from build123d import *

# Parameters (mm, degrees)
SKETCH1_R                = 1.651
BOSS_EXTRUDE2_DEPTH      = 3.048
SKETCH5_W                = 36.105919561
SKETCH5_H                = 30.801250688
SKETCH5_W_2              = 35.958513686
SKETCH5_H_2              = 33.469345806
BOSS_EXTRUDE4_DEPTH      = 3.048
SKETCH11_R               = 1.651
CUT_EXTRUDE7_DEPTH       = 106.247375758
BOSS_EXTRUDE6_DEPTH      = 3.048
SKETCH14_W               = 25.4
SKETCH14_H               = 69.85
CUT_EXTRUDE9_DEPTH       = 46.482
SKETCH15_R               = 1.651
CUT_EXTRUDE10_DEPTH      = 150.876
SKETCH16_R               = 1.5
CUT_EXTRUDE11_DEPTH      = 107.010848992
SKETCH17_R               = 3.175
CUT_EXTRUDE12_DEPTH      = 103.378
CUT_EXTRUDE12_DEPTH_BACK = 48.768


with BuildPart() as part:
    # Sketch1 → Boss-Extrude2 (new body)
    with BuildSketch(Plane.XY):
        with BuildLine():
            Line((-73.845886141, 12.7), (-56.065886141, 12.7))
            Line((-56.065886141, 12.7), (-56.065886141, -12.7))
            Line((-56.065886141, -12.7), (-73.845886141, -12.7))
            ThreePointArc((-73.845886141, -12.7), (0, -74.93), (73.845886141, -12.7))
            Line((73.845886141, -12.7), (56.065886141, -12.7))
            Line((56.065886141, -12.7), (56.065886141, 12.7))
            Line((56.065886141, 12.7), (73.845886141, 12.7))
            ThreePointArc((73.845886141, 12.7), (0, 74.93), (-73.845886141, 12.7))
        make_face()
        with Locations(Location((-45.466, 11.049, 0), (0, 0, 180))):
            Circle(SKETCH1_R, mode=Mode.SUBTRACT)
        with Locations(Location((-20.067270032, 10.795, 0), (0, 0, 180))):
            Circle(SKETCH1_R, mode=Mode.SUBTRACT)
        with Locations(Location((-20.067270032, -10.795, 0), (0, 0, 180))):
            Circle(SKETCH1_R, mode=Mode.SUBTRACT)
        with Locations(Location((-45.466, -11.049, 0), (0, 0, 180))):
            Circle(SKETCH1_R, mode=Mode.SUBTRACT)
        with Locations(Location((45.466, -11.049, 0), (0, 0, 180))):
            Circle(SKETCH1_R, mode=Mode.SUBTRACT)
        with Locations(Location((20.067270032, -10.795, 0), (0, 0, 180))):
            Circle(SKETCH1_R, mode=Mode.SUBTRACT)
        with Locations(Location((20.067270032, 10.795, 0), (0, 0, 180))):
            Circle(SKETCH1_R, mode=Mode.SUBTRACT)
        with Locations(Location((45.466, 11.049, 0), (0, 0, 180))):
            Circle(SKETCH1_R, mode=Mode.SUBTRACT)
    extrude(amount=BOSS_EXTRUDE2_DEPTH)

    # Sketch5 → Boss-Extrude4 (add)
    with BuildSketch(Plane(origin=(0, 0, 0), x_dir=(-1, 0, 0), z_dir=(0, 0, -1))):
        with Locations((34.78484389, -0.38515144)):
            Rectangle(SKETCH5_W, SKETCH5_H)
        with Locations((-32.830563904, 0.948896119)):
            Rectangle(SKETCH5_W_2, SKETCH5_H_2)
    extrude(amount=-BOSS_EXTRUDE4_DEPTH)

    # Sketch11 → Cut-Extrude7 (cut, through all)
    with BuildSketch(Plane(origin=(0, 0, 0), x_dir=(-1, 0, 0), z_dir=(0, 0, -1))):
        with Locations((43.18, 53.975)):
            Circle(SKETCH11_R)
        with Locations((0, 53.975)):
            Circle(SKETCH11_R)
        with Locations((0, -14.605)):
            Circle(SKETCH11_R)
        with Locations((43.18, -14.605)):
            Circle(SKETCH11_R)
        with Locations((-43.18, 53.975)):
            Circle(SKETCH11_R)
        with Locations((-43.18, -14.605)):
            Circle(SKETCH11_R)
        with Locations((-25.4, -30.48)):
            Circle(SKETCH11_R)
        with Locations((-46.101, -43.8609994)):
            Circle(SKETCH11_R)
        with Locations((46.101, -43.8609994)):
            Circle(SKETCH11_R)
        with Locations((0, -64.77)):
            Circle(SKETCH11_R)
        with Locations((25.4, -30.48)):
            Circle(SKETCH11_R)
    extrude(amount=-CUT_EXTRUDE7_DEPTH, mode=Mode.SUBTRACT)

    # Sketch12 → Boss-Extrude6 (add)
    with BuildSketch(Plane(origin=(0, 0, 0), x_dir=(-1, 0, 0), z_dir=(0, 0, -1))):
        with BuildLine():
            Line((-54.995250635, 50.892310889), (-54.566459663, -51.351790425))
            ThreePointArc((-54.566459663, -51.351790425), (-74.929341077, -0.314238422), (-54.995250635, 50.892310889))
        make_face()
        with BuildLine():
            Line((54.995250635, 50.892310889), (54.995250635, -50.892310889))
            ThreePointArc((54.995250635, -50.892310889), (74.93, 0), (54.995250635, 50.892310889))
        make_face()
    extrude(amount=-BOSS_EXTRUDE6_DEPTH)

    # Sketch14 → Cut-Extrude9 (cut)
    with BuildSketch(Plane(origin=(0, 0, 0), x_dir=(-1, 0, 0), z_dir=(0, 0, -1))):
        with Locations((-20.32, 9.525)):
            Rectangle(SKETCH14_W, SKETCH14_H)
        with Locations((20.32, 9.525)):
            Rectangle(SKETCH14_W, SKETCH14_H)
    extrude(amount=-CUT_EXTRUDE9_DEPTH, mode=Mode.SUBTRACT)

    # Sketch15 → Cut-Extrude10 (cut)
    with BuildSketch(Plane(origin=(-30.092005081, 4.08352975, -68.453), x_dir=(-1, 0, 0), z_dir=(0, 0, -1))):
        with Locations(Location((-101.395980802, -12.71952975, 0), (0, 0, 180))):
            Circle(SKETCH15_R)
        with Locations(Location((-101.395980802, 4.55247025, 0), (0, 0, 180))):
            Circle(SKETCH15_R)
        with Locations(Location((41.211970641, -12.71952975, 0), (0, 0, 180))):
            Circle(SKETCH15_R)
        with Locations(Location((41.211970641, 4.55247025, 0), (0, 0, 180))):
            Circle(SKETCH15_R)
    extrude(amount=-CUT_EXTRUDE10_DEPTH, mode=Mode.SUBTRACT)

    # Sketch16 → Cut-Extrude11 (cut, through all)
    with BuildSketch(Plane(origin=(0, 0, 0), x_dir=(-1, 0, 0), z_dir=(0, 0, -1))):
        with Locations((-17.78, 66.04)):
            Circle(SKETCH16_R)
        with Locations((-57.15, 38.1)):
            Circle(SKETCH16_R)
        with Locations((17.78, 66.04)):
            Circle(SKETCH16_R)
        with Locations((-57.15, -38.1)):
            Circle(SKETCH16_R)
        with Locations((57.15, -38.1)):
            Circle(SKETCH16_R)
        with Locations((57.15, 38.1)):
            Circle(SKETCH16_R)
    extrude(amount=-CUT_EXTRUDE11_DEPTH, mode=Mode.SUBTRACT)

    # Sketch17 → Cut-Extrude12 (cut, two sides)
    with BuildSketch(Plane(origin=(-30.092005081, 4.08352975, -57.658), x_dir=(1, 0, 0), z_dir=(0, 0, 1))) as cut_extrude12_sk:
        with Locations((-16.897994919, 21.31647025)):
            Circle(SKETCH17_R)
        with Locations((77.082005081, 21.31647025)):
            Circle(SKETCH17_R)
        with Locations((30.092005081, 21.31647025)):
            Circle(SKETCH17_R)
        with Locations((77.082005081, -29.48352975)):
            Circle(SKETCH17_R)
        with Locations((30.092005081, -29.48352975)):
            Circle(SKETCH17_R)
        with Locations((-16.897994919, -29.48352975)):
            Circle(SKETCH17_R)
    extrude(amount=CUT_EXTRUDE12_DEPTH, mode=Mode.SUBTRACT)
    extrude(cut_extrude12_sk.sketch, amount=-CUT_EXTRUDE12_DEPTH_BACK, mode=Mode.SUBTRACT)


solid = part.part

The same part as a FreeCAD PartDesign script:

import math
import FreeCAD as App
import Part
import Sketcher

V = App.Vector
Q = App.Units.Quantity


def add_polygon(sketch, points):
    """Adds a closed chain of lines whose ends are joined by coincident constraints."""
    first, n = sketch.GeometryCount, len(points)
    for a, b in zip(points, points[1:] + points[:1]):
        sketch.addGeometry(Part.LineSegment(App.Vector(*a, 0), App.Vector(*b, 0)), False)
    for i in range(n):
        sketch.addConstraint(Sketcher.Constraint("Coincident", first + i, 2, first + (i + 1) % n, 1))

doc = App.newDocument("Part")
body = doc.addObject("PartDesign::Body", "Body")

sketch1 = doc.addObject("Sketcher::SketchObject", "Sketch")
body.addObject(sketch1)
sketch1.AttachmentSupport = (doc.XY_Plane, [""])
sketch1.MapMode = "FlatFace"
sketch1.addGeometry([
    Part.LineSegment(V(-73.8, 12.7, 0), V(-56.1, 12.7, 0)),
    Part.LineSegment(V(-56.1, 12.7, 0), V(-56.1, -12.7, 0)),
    Part.LineSegment(V(-56.1, -12.7, 0), V(-73.8, -12.7, 0)),
    Part.ArcOfCircle(Part.Circle(V(0, 0, 0), V(0, 0, 1), 74.9), math.radians(-170), math.radians(-10)),
    Part.LineSegment(V(73.8, -12.7, 0), V(56.1, -12.7, 0)),
    Part.LineSegment(V(56.1, -12.7, 0), V(56.1, 12.7, 0)),
    Part.LineSegment(V(56.1, 12.7, 0), V(73.8, 12.7, 0)),
    Part.ArcOfCircle(Part.Circle(V(0, 0, 0), V(0, 0, 1), 74.9), math.radians(10), math.radians(170)),
    Part.Circle(V(-45.5, -11, 0), V(0, 0, 1), 1.7),
    Part.Circle(V(-20.1, -10.8, 0), V(0, 0, 1), 1.7),
    Part.Circle(V(20.1, -10.8, 0), V(0, 0, 1), 1.7),
    Part.Circle(V(45.5, -11, 0), V(0, 0, 1), 1.7),
    Part.Circle(V(-45.5, 11, 0), V(0, 0, 1), 1.7),
    Part.Circle(V(-20.1, 10.8, 0), V(0, 0, 1), 1.7),
    Part.Circle(V(20.1, 10.8, 0), V(0, 0, 1), 1.7),
    Part.Circle(V(45.5, 11, 0), V(0, 0, 1), 1.7),
], False)
sketch1.addConstraint([
    Sketcher.Constraint("Coincident", 0, 2, 1, 1),
    Sketcher.Constraint("Coincident", 1, 2, 2, 1),
    Sketcher.Constraint("Coincident", 2, 2, 3, 1),
    Sketcher.Constraint("Coincident", 3, 2, 4, 1),
    Sketcher.Constraint("Coincident", 4, 2, 5, 1),
    Sketcher.Constraint("Coincident", 5, 2, 6, 1),
    Sketcher.Constraint("Coincident", 6, 2, 7, 1),
    Sketcher.Constraint("Coincident", 7, 2, 0, 1),
    Sketcher.Constraint("Horizontal", 0),
    Sketcher.Constraint("Vertical", 1),
    Sketcher.Constraint("Horizontal", 2),
    Sketcher.Constraint("Horizontal", 4),
    Sketcher.Constraint("Vertical", 5),
    Sketcher.Constraint("Horizontal", 6),
    Sketcher.Constraint("Coincident", 3, 3, -1, 1),
    Sketcher.Constraint("Coincident", 7, 3, -1, 1),
    Sketcher.Constraint("Equal", 3, 7),
    Sketcher.Constraint("Equal", 8, 9),
    Sketcher.Constraint("Equal", 9, 10),
    Sketcher.Constraint("Equal", 10, 11),
    Sketcher.Constraint("Equal", 11, 12),
    Sketcher.Constraint("Equal", 12, 13),
    Sketcher.Constraint("Equal", 13, 14),
    Sketcher.Constraint("Equal", 14, 15),
    Sketcher.Constraint("Symmetric", 11, 3, 12, 3, -1, 1),
    Sketcher.Constraint("Symmetric", 10, 3, 13, 3, -1, 1),
    Sketcher.Constraint("Symmetric", 9, 3, 14, 3, -1, 1),
    Sketcher.Constraint("Symmetric", 8, 3, 15, 3, -1, 1),
    Sketcher.Constraint("Symmetric", 0, 2, 4, 2, -1, 1),
    Sketcher.Constraint("Symmetric", 9, 3, 10, 3, -2),
    Sketcher.Constraint("Symmetric", 8, 3, 11, 3, -2),
    Sketcher.Constraint("Horizontal", 2, 2, 3, 2),
    Sketcher.Constraint("Horizontal", 0, 2, 5, 2),
    Sketcher.Constraint("Diameter", 8, Q("0.13 in")),
    Sketcher.Constraint("DistanceY", 1, 2, 1, 1, Q("1 in")),
    Sketcher.Constraint("Radius", 3, Q("2.95 in")),
    Sketcher.Constraint("DistanceX", 0, 1, 0, 2, Q("0.7 in")),
    Sketcher.Constraint("DistanceX", 8, 3, -1, 1, Q("1.79 in")),
    Sketcher.Constraint("DistanceY", 8, 3, 9, 3, Q("0.01 in")),
    Sketcher.Constraint("DistanceY", 8, 3, 12, 3, Q("0.87 in")),
    Sketcher.Constraint("DistanceX", 9, 3, 10, 3, Q("1.5801 in")),
])
pad1 = doc.addObject("PartDesign::Pad", "Pad")
body.addObject(pad1)
pad1.Profile = sketch1
pad1.Length = Q("0.12 in")

sketch2 = doc.addObject("Sketcher::SketchObject", "Sketch001")
body.addObject(sketch2)
sketch2.AttachmentSupport = (doc.XY_Plane, [""])
sketch2.MapMode = "FlatFace"
add_polygon(sketch2, [(-17, 15), (-17, -16), (-53, -16), (-53, 15)])
add_polygon(sketch2, [(51, 18), (51, -16), (15, -16), (15, 18)])
sketch2.addConstraint([
    Sketcher.Constraint("Vertical", 0),
    Sketcher.Constraint("Horizontal", 1),
    Sketcher.Constraint("Vertical", 2),
    Sketcher.Constraint("Horizontal", 3),
    Sketcher.Constraint("Vertical", 4),
    Sketcher.Constraint("Horizontal", 5),
    Sketcher.Constraint("Vertical", 6),
    Sketcher.Constraint("Horizontal", 7),
    Sketcher.Constraint("Horizontal", 1, 2, 4, 2),
    Sketcher.Constraint("DistanceX", 1, 2, 1, 1, Q("36.10592 mm")),
    Sketcher.Constraint("DistanceY", 0, 2, 0, 1, Q("30.801251 mm")),
    Sketcher.Constraint("DistanceX", 5, 2, 5, 1, Q("35.958514 mm")),
    Sketcher.Constraint("DistanceY", 4, 2, 4, 1, Q("33.469346 mm")),
    Sketcher.Constraint("DistanceX", -1, 1, 4, 2, Q("50.809821 mm")),
    Sketcher.Constraint("DistanceY", -1, 1, 6, 2, Q("17.683569 mm")),
    Sketcher.Constraint("DistanceX", 0, 2, 5, 2, Q("31.583191 mm")),
])
pad2 = doc.addObject("PartDesign::Pad", "Pad001")
body.addObject(pad2)
pad2.Profile = sketch2
pad2.Length = Q("0.12 in")

sketch3 = doc.addObject("Sketcher::SketchObject", "Sketch002")
body.addObject(sketch3)
sketch3.AttachmentSupport = (doc.XY_Plane, [""])
sketch3.MapMode = "FlatFace"
sketch3.addGeometry([
    Part.Circle(V(-43.2, 54, 0), V(0, 0, 1), 1.7),
    Part.Circle(V(0, 54, 0), V(0, 0, 1), 1.7),
    Part.Circle(V(0, -14.6, 0), V(0, 0, 1), 1.7),
    Part.Circle(V(-43.2, -14.6, 0), V(0, 0, 1), 1.7),
    Part.Circle(V(43.2, 54, 0), V(0, 0, 1), 1.7),
    Part.Circle(V(43.2, -14.6, 0), V(0, 0, 1), 1.7),
    Part.Circle(V(25.4, -30.5, 0), V(0, 0, 1), 1.7),
    Part.Circle(V(46.1, -43.9, 0), V(0, 0, 1), 1.7),
    Part.Circle(V(-46.1, -43.9, 0), V(0, 0, 1), 1.7),
    Part.Circle(V(0, -64.8, 0), V(0, 0, 1), 1.7),
    Part.Circle(V(-25.4, -30.5, 0), V(0, 0, 1), 1.7),
], False)
sketch3.addConstraint([
    Sketcher.Constraint("Equal", 0, 1),
    Sketcher.Constraint("Equal", 1, 2),
    Sketcher.Constraint("Equal", 2, 3),
    Sketcher.Constraint("Equal", 3, 4),
    Sketcher.Constraint("Equal", 4, 5),
    Sketcher.Constraint("Equal", 5, 6),
    Sketcher.Constraint("Equal", 6, 7),
    Sketcher.Constraint("Equal", 7, 8),
    Sketcher.Constraint("Equal", 8, 9),
    Sketcher.Constraint("Equal", 9, 10),
    Sketcher.Constraint("Symmetric", 0, 3, 4, 3, -2),
    Sketcher.Constraint("Symmetric", 3, 3, 5, 3, -2),
    Sketcher.Constraint("Symmetric", 7, 3, 8, 3, -2),
    Sketcher.Constraint("Symmetric", 6, 3, 10, 3, -2),
    Sketcher.Constraint("PointOnObject", 1, 3, -2),
    Sketcher.Constraint("PointOnObject", 2, 3, -2),
    Sketcher.Constraint("PointOnObject", 9, 3, -2),
    Sketcher.Constraint("Horizontal", 0, 3, 1, 3),
    Sketcher.Constraint("Horizontal", 2, 3, 3, 3),
    Sketcher.Constraint("Vertical", 0, 3, 3, 3),
    Sketcher.Constraint("Diameter", 0, Q("0.13 in")),
    Sketcher.Constraint("DistanceX", -1, 1, 6, 3, Q("1 in")),
    Sketcher.Constraint("DistanceX", 0, 3, -1, 1, Q("1.7 in")),
    Sketcher.Constraint("DistanceY", 6, 3, -1, 1, Q("1.2 in")),
    Sketcher.Constraint("DistanceY", 2, 3, 1, 3, Q("2.7 in")),
    Sketcher.Constraint("DistanceY", 9, 3, -1, 1, Q("2.55 in")),
    Sketcher.Constraint("DistanceX", 8, 3, 7, 3, Q("3.63 in")),
    Sketcher.Constraint("DistanceY", -1, 1, 0, 3, Q("2.125 in")),
    Sketcher.Constraint("DistanceY", 7, 3, -1, 1, Q("43.860999 mm")),
])
pocket1 = doc.addObject("PartDesign::Pocket", "Pocket")
body.addObject(pocket1)
pocket1.Profile = sketch3
pocket1.Type = "ThroughAll"
pocket1.Reversed = True

sketch4 = doc.addObject("Sketcher::SketchObject", "Sketch003")
body.addObject(sketch4)
sketch4.AttachmentSupport = (doc.XY_Plane, [""])
sketch4.MapMode = "FlatFace"
sketch4.addGeometry([
    Part.LineSegment(V(55, -51, 0), V(55, 51, 0)),
    Part.ArcOfCircle(Part.Circle(V(0, 0, 0), V(0, 0, 1), 75), math.radians(-43), math.radians(43)),
    Part.LineSegment(V(-55, 51, 0), V(-55, -51, 0)),
    Part.ArcOfCircle(Part.Circle(V(0, 0, 0), V(0, 0, 1), 75), math.radians(137), math.radians(223)),
], False)
sketch4.addConstraint([
    Sketcher.Constraint("Coincident", 0, 1, 1, 1),
    Sketcher.Constraint("Coincident", 1, 2, 0, 2),
    Sketcher.Constraint("Coincident", 2, 1, 3, 1),
    Sketcher.Constraint("Coincident", 3, 2, 2, 2),
    Sketcher.Constraint("Vertical", 2),
    Sketcher.Constraint("Coincident", 1, 3, -1, 1),
    Sketcher.Constraint("Coincident", 3, 3, -1, 1),
    Sketcher.Constraint("Equal", 1, 3),
    Sketcher.Constraint("Horizontal", 1, 2, 2, 1),
    Sketcher.Constraint("Radius", 1, Q("2.95 in")),
    Sketcher.Constraint("Distance", 0, Q("102.245 mm")),
    Sketcher.Constraint("DistanceY", 2, 2, 2, 1, Q("101.784622 mm")),
])
pad3 = doc.addObject("PartDesign::Pad", "Pad002")
body.addObject(pad3)
pad3.Profile = sketch4
pad3.Length = Q("0.12 in")

sketch5 = doc.addObject("Sketcher::SketchObject", "Sketch004")
body.addObject(sketch5)
sketch5.AttachmentSupport = (doc.XY_Plane, [""])
sketch5.MapMode = "FlatFace"
add_polygon(sketch5, [(33, 44), (33, -25), (8, -25), (8, 44)])
add_polygon(sketch5, [(-8, 44), (-8, -25), (-33, -25), (-33, 44)])
sketch5.addConstraint([
    Sketcher.Constraint("Vertical", 0),
    Sketcher.Constraint("Horizontal", 1),
    Sketcher.Constraint("Vertical", 2),
    Sketcher.Constraint("Horizontal", 3),
    Sketcher.Constraint("Vertical", 4),
    Sketcher.Constraint("Horizontal", 5),
    Sketcher.Constraint("Vertical", 6),
    Sketcher.Constraint("Horizontal", 7),
    Sketcher.Constraint("Symmetric", 1, 2, 4, 2, -2),
    Sketcher.Constraint("Symmetric", 3, 2, 6, 2, -2),
    Sketcher.Constraint("DistanceX", 1, 2, 1, 1, Q("1 in")),
    Sketcher.Constraint("DistanceY", 0, 2, -1, 1, Q("1 in")),
    Sketcher.Constraint("DistanceY", 0, 2, 0, 1, Q("2.75 in")),
    Sketcher.Constraint("DistanceX", -1, 1, 0, 2, Q("1.3 in")),
])
pocket2 = doc.addObject("PartDesign::Pocket", "Pocket001")
body.addObject(pocket2)
pocket2.Profile = sketch5
pocket2.Length = Q("1.83 in")
pocket2.Reversed = True

sketch6 = doc.addObject("Sketcher::SketchObject", "Sketch005")
body.addObject(sketch6)
sketch6.AttachmentSupport = (doc.XY_Plane, [""])
sketch6.MapMode = "FlatFace"
sketch6.AttachmentOffset = App.Placement(V(0, 0, -2.695 * 25.4), App.Rotation())
sketch6.addGeometry([
    Part.Circle(V(71.3, -8.6, 0), V(0, 0, 1), 1.7),
    Part.Circle(V(71.3, 8.6, 0), V(0, 0, 1), 1.7),
    Part.Circle(V(-71.3, -8.6, 0), V(0, 0, 1), 1.7),
    Part.Circle(V(-71.3, 8.6, 0), V(0, 0, 1), 1.7),
], False)
sketch6.addConstraint([
    Sketcher.Constraint("Equal", 0, 1),
    Sketcher.Constraint("Equal", 1, 2),
    Sketcher.Constraint("Equal", 2, 3),
    Sketcher.Constraint("Symmetric", 1, 3, 2, 3, -1, 1),
    Sketcher.Constraint("Symmetric", 0, 3, 3, 3, -1, 1),
    Sketcher.Constraint("Symmetric", 0, 3, 2, 3, -2),
    Sketcher.Constraint("Diameter", 0, Q("0.13 in")),
    Sketcher.Constraint("DistanceY", 0, 3, -1, 1, Q("0.34 in")),
    Sketcher.Constraint("DistanceX", 2, 3, 0, 3, Q("142.607951 mm")),
])
pocket3 = doc.addObject("PartDesign::Pocket", "Pocket002")
body.addObject(pocket3)
pocket3.Profile = sketch6
pocket3.Length = Q("5.94 in")
pocket3.Reversed = True

sketch7 = doc.addObject("Sketcher::SketchObject", "Sketch006")
body.addObject(sketch7)
sketch7.AttachmentSupport = (doc.XY_Plane, [""])
sketch7.MapMode = "FlatFace"
sketch7.addGeometry([
    Part.Circle(V(17.8, 66, 0), V(0, 0, 1), 1.5),
    Part.Circle(V(57.1, 38.1, 0), V(0, 0, 1), 1.5),
    Part.Circle(V(-17.8, 66, 0), V(0, 0, 1), 1.5),
    Part.Circle(V(57.1, -38.1, 0), V(0, 0, 1), 1.5),
    Part.Circle(V(-57.1, -38.1, 0), V(0, 0, 1), 1.5),
    Part.Circle(V(-57.1, 38.1, 0), V(0, 0, 1), 1.5),
], False)
sketch7.addConstraint([
    Sketcher.Constraint("Equal", 0, 1),
    Sketcher.Constraint("Equal", 1, 2),
    Sketcher.Constraint("Equal", 2, 3),
    Sketcher.Constraint("Equal", 3, 4),
    Sketcher.Constraint("Equal", 4, 5),
    Sketcher.Constraint("Symmetric", 1, 3, 4, 3, -1, 1),
    Sketcher.Constraint("Symmetric", 3, 3, 5, 3, -1, 1),
    Sketcher.Constraint("Symmetric", 0, 3, 2, 3, -2),
    Sketcher.Constraint("Symmetric", 3, 3, 4, 3, -2),
    Sketcher.Constraint("DistanceY", 3, 3, 1, 3, Q("3 in")),
    Sketcher.Constraint("DistanceX", -1, 1, 0, 3, Q("0.7 in")),
    Sketcher.Constraint("DistanceY", -1, 1, 0, 3, Q("2.6 in")),
    Sketcher.Constraint("DistanceX", 4, 3, 3, 3, Q("4.5 in")),
    Sketcher.Constraint("Diameter", 0, Q("3 mm")),
])
pocket4 = doc.addObject("PartDesign::Pocket", "Pocket003")
body.addObject(pocket4)
pocket4.Profile = sketch7
pocket4.Type = "ThroughAll"
pocket4.Reversed = True

sketch8 = doc.addObject("Sketcher::SketchObject", "Sketch007")
body.addObject(sketch8)
sketch8.AttachmentSupport = (doc.XY_Plane, [""])
sketch8.MapMode = "FlatFace"
sketch8.AttachmentOffset = App.Placement(V(0, 0, -2.27 * 25.4), App.Rotation())
sketch8.addGeometry([
    Part.Circle(V(-47, 25.4, 0), V(0, 0, 1), 3.2),
    Part.Circle(V(47, 25.4, 0), V(0, 0, 1), 3.2),
    Part.Circle(V(0, 25.4, 0), V(0, 0, 1), 3.2),
    Part.Circle(V(47, -25.4, 0), V(0, 0, 1), 3.2),
    Part.Circle(V(0, -25.4, 0), V(0, 0, 1), 3.2),
    Part.Circle(V(-47, -25.4, 0), V(0, 0, 1), 3.2),
], False)
sketch8.addConstraint([
    Sketcher.Constraint("Equal", 0, 1),
    Sketcher.Constraint("Equal", 1, 2),
    Sketcher.Constraint("Equal", 2, 3),
    Sketcher.Constraint("Equal", 3, 4),
    Sketcher.Constraint("Equal", 4, 5),
    Sketcher.Constraint("Symmetric", 0, 3, 3, 3, -1, 1),
    Sketcher.Constraint("Symmetric", 2, 3, 4, 3, -1, 1),
    Sketcher.Constraint("Symmetric", 1, 3, 5, 3, -1, 1),
    Sketcher.Constraint("Symmetric", 0, 3, 1, 3, -2),
    Sketcher.Constraint("PointOnObject", 2, 3, -2),
    Sketcher.Constraint("Horizontal", 1, 3, 2, 3),
    Sketcher.Constraint("Diameter", 0, Q("0.25 in")),
    Sketcher.Constraint("DistanceY", -1, 1, 0, 3, Q("1 in")),
    Sketcher.Constraint("DistanceX", 0, 3, 1, 3, Q("3.7 in")),
])
pocket5 = doc.addObject("PartDesign::Pocket", "Pocket004")
body.addObject(pocket5)
pocket5.Profile = sketch8
pocket5.Type = "ThroughAll"
pocket5.Midplane = True

doc.recompute()
